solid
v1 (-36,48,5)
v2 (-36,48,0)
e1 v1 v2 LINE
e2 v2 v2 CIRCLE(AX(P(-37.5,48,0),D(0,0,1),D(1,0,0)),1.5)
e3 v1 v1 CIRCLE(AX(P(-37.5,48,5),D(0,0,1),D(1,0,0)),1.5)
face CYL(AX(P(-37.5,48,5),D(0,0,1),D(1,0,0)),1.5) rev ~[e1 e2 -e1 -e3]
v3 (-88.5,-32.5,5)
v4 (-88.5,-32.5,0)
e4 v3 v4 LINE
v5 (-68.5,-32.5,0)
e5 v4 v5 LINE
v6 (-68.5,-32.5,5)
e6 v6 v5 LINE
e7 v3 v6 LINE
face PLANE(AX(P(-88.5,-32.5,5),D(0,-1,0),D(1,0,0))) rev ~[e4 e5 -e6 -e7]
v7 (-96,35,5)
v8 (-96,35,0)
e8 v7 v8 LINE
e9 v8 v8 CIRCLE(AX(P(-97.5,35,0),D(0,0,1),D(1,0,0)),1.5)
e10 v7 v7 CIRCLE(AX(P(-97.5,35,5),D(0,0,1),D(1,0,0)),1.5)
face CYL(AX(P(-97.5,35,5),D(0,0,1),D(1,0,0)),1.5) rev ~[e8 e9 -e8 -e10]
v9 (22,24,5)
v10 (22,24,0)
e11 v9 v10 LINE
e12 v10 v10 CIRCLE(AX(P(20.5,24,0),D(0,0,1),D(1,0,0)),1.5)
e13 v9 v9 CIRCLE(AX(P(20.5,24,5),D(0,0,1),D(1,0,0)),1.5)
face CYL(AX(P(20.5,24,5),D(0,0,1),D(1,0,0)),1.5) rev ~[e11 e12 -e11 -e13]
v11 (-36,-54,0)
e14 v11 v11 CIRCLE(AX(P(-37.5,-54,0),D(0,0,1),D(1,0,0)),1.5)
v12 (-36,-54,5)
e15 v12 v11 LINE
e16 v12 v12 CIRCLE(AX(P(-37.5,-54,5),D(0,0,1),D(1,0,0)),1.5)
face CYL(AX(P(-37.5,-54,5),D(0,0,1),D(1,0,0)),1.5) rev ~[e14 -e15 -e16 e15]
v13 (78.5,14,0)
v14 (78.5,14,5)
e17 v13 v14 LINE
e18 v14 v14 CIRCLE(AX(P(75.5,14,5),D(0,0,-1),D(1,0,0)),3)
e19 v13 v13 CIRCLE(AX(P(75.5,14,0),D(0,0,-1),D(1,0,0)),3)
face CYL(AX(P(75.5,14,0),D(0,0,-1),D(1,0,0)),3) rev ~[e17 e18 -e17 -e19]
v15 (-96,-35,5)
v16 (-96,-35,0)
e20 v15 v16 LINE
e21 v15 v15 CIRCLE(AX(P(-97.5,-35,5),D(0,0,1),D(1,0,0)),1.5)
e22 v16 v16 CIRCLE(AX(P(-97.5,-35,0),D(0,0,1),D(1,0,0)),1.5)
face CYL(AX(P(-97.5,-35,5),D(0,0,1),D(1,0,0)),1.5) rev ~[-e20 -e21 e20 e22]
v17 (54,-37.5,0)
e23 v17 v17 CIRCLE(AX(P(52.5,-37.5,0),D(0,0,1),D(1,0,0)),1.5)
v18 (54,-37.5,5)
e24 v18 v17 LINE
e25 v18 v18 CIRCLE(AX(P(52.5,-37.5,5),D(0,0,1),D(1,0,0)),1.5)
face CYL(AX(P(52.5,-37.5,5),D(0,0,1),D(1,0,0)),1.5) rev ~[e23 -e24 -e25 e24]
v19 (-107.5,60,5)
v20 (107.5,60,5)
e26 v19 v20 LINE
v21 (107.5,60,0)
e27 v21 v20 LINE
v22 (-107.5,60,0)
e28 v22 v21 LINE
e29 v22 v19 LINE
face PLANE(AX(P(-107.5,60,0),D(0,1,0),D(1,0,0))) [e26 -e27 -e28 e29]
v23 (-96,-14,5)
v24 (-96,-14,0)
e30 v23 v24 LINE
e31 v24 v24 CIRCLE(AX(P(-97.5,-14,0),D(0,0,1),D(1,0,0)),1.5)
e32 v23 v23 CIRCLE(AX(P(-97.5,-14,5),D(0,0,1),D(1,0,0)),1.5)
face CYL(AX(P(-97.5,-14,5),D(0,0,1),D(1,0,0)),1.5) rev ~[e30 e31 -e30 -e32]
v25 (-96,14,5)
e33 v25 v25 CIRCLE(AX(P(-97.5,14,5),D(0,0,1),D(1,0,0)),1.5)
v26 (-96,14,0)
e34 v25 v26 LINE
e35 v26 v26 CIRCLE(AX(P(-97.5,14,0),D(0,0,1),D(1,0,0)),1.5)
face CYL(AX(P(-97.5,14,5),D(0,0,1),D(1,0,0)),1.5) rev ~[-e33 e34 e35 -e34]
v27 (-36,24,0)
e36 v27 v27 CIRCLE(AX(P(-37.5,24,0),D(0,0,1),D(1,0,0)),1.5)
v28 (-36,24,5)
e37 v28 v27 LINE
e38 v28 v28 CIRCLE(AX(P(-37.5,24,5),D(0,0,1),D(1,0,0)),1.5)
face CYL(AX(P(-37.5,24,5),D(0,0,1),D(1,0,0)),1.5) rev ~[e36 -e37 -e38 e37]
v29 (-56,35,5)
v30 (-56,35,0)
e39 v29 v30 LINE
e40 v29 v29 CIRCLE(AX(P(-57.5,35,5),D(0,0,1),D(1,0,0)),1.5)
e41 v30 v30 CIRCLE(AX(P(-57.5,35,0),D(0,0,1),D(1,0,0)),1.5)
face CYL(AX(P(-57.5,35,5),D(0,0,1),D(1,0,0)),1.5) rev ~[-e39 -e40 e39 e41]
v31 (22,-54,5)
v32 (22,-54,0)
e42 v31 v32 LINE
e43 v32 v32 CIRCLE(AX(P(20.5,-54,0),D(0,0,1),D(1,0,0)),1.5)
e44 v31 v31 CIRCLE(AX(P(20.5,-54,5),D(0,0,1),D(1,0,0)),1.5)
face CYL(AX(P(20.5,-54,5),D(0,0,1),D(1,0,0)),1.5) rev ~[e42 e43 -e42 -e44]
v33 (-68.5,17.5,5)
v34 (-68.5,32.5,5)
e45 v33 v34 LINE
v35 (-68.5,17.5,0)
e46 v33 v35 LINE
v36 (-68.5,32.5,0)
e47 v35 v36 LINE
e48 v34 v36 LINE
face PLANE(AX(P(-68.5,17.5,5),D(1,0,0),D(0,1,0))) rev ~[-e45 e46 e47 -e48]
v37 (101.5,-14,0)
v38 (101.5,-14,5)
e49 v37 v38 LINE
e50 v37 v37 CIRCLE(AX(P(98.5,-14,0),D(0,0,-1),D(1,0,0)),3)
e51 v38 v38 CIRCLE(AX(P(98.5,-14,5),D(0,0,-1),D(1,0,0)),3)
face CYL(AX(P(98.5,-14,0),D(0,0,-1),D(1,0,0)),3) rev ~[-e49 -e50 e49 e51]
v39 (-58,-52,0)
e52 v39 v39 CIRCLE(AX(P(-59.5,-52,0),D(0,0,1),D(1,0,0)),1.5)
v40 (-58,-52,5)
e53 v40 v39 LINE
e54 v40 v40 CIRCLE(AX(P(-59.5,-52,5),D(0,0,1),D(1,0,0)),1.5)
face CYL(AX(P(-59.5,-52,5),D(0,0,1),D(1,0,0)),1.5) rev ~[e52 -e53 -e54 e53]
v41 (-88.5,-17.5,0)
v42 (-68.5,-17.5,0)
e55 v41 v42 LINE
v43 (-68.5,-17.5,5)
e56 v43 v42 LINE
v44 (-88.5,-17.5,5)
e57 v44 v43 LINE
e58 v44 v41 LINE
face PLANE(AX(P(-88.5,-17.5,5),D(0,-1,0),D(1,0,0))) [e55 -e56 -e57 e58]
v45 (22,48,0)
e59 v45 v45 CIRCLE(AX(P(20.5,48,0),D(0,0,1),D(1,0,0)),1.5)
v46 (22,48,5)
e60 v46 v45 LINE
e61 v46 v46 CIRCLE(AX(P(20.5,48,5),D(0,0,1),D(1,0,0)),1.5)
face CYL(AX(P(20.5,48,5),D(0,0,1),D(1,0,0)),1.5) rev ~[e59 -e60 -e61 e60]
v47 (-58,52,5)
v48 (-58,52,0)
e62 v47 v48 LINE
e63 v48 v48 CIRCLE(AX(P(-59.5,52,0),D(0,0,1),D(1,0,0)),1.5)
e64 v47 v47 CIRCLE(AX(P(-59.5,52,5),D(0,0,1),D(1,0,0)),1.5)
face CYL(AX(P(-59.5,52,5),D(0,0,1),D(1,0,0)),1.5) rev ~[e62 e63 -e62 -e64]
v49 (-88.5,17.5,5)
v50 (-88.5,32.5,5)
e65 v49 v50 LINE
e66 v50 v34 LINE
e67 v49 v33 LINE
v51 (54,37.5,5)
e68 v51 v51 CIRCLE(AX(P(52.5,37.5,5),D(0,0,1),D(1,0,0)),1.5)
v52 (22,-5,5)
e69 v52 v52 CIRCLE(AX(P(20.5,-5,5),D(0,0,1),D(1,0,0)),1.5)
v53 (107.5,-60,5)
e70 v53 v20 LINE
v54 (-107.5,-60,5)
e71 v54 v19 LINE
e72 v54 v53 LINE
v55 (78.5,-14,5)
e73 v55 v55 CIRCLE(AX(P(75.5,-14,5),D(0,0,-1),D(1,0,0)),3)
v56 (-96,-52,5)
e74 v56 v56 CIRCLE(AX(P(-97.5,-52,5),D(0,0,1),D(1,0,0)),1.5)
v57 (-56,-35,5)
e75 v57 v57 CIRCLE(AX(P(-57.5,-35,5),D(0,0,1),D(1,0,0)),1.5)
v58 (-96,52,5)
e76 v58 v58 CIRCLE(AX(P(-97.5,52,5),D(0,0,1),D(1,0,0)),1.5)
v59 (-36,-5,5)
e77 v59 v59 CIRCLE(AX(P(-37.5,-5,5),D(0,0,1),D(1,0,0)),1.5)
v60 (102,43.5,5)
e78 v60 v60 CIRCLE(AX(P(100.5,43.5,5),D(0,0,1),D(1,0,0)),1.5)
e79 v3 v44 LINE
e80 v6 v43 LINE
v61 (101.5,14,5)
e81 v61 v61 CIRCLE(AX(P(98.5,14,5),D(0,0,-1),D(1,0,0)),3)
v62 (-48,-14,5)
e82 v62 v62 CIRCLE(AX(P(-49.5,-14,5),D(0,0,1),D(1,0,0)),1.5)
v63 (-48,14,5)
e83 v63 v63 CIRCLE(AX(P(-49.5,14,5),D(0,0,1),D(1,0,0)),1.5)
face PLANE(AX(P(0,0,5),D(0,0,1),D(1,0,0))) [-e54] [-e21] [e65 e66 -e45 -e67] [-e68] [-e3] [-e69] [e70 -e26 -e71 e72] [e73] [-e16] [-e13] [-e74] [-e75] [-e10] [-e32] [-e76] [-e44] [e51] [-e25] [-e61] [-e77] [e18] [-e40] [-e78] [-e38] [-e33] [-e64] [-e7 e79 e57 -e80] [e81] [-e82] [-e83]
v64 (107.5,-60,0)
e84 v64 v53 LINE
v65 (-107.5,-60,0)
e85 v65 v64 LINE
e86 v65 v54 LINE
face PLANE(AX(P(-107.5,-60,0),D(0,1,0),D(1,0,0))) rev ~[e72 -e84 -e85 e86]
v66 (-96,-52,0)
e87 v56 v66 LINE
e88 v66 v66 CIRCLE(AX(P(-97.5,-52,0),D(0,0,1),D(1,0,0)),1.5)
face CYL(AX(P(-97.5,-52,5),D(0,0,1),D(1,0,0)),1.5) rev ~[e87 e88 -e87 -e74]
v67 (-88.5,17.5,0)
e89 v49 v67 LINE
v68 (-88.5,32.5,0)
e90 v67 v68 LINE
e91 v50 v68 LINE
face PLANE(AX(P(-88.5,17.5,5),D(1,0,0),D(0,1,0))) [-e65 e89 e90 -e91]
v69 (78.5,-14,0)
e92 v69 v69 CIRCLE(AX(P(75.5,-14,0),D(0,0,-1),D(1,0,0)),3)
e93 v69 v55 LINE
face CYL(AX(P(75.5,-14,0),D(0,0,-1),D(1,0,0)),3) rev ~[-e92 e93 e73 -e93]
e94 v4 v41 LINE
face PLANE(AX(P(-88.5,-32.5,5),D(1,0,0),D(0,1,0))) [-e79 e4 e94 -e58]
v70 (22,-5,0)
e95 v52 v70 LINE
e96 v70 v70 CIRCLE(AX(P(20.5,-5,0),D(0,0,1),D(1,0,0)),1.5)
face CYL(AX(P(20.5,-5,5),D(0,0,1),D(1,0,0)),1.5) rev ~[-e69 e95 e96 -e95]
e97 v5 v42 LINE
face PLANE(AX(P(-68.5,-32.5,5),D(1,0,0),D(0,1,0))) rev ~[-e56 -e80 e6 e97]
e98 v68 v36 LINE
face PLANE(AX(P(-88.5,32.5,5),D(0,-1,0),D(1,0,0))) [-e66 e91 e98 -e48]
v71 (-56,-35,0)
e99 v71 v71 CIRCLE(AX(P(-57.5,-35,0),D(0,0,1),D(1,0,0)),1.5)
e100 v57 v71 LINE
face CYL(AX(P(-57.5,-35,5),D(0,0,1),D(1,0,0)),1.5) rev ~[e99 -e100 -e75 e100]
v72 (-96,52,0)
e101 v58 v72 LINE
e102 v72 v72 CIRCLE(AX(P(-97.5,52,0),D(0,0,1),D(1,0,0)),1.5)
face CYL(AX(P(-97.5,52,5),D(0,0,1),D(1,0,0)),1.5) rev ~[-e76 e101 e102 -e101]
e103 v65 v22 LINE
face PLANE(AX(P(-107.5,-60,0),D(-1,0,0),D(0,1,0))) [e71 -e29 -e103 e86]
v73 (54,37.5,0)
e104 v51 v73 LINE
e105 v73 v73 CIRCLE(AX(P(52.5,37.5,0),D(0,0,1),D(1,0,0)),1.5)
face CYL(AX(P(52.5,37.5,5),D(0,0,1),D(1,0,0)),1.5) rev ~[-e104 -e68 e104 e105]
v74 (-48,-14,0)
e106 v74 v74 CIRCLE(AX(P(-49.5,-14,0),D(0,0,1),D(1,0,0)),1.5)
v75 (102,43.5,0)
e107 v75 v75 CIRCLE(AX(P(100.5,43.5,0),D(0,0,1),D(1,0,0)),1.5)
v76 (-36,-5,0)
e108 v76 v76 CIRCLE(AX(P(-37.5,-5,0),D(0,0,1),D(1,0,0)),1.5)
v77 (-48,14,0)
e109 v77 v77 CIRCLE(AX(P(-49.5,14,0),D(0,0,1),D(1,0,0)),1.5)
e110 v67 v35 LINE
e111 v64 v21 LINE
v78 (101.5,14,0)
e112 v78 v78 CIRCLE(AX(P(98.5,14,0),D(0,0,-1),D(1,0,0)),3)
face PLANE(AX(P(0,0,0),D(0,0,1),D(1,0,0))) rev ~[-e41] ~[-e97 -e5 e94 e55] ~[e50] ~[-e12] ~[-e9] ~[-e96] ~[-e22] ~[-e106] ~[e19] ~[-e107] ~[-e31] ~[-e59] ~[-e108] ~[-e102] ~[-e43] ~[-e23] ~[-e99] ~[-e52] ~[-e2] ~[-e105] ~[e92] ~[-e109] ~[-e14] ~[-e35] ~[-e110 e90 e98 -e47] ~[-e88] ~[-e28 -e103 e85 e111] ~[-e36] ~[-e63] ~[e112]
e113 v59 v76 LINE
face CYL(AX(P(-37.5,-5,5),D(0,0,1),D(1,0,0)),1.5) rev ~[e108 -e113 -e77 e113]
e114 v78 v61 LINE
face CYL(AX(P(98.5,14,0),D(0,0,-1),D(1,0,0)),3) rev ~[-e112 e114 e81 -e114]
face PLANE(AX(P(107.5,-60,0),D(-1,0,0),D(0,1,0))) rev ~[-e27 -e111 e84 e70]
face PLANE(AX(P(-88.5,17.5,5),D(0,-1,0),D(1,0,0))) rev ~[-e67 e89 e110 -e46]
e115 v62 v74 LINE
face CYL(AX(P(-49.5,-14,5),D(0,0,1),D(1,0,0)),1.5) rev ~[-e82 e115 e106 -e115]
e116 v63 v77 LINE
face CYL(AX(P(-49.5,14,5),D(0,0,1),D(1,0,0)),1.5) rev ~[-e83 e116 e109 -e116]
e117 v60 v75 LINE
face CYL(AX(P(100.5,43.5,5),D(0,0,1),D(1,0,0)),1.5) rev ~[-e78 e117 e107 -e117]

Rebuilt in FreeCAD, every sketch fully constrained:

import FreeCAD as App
import Part
import Sketcher
from FreeCAD import Vector
Q = App.Units.Quantity


def add_polygon(sketch, points):
    """Adds a closed chain of lines whose ends are joined by coincident constraints."""
    first, n = sketch.GeometryCount, len(points)
    for a, b in zip(points, points[1:] + points[:1]):
        sketch.addGeometry(Part.LineSegment(App.Vector(*a, 0), App.Vector(*b, 0)), False)
    for i in range(n):
        sketch.addConstraint(Sketcher.Constraint("Coincident", first + i, 2, first + (i + 1) % n, 1))

doc = App.newDocument("Part")
body = doc.addObject("PartDesign::Body", "Body")

sketch1 = body.newObject("Sketcher::SketchObject", "Sketch")
sketch1.AttachmentSupport = (doc.getObject("XY_Plane"), [""])
sketch1.MapMode = "FlatFace"
add_polygon(sketch1, [(-108, 60), (-108, -60), (108, -60), (108, 60)])
sketch1.addConstraint(Sketcher.Constraint("Vertical", 0))
sketch1.addConstraint(Sketcher.Constraint("Horizontal", 1))
sketch1.addConstraint(Sketcher.Constraint("Vertical", 2))
sketch1.addConstraint(Sketcher.Constraint("Horizontal", 3))
sketch1.addConstraint(Sketcher.Constraint("Symmetric", 0, 2, 2, 2, -1, 1))
sketch1.addConstraint(Sketcher.Constraint("DistanceX", 1, 1, 1, 2, Q("215 mm")))
sketch1.addConstraint(Sketcher.Constraint("DistanceY", 0, 2, 0, 1, Q("120 mm")))
pad1 = body.newObject("PartDesign::Pad", "Pad")
pad1.Profile = sketch1
pad1.Length = 5

sketch2 = body.newObject("Sketcher::SketchObject", "Sketch001")
sketch2.AttachmentSupport = (doc.getObject("XY_Plane"), [""])
sketch2.MapMode = "FlatFace"
sketch2.AttachmentOffset = App.Placement(Vector(0, 0, 5), App.Rotation())
sketch2.addGeometry(Part.Circle(Vector(-97.5, 52, 0), Vector(0, 0, 1), 1.5), False)
sketch2.addGeometry(Part.Circle(Vector(-59.5, 52, 0), Vector(0, 0, 1), 1.5), False)
sketch2.addGeometry(Part.Circle(Vector(-97.5, -52, 0), Vector(0, 0, 1), 1.5), False)
sketch2.addGeometry(Part.Circle(Vector(-59.5, -52, 0), Vector(0, 0, 1), 1.5), False)
add_polygon(sketch2, [(-88.5, 32.5), (-88.5, 17.5), (-68.5, 17.5), (-68.5, 32.5)])
add_polygon(sketch2, [(-88.5, -17.5), (-88.5, -32.5), (-68.5, -32.5), (-68.5, -17.5)])
sketch2.addConstraint(Sketcher.Constraint("Vertical", 4))
sketch2.addConstraint(Sketcher.Constraint("Horizontal", 5))
sketch2.addConstraint(Sketcher.Constraint("Vertical", 6))
sketch2.addConstraint(Sketcher.Constraint("Horizontal", 7))
sketch2.addConstraint(Sketcher.Constraint("Vertical", 8))
sketch2.addConstraint(Sketcher.Constraint("Horizontal", 9))
sketch2.addConstraint(Sketcher.Constraint("Vertical", 10))
sketch2.addConstraint(Sketcher.Constraint("Horizontal", 11))
sketch2.addConstraint(Sketcher.Constraint("Equal", 0, 1))
sketch2.addConstraint(Sketcher.Constraint("Equal", 1, 2))
sketch2.addConstraint(Sketcher.Constraint("Equal", 2, 3))
sketch2.addConstraint(Sketcher.Constraint("Symmetric", 0, 3, 2, 3, -1))
sketch2.addConstraint(Sketcher.Constraint("Symmetric", 1, 3, 3, 3, -1))
sketch2.addConstraint(Sketcher.Constraint("Symmetric", 7, 2, 8, 2, -1))
sketch2.addConstraint(Sketcher.Constraint("Symmetric", 5, 2, 10, 2, -1))
sketch2.addConstraint(Sketcher.Constraint("Horizontal", 0, 3, 1, 3))
sketch2.addConstraint(Sketcher.Constraint("Diameter", 0, Q("3 mm")))
sketch2.addConstraint(Sketcher.Constraint("DistanceX", 5, 1, 5, 2, Q("20 mm")))
sketch2.addConstraint(Sketcher.Constraint("DistanceY", 4, 2, 4, 1, Q("15 mm")))
sketch2.addConstraint(Sketcher.Constraint("DistanceY", -1, 1, 0, 3, Q("52 mm")))
sketch2.addConstraint(Sketcher.Constraint("DistanceX", 0, 3, 1, 3, Q("38 mm")))
sketch2.addConstraint(Sketcher.Constraint("DistanceX", 0, 3, 4, 2, Q("9 mm")))
sketch2.addConstraint(Sketcher.Constraint("DistanceY", 8, 2, 4, 2, Q("50 mm")))
sketch2.addConstraint(Sketcher.Constraint("DistanceX", 0, 3, -1, 1, Q("97.5 mm")))
pocket1 = body.newObject("PartDesign::Pocket", "Pocket")
pocket1.Profile = sketch2
pocket1.Length = 25

sketch3 = body.newObject("Sketcher::SketchObject", "Sketch002")
sketch3.AttachmentSupport = (doc.getObject("XY_Plane"), [""])
sketch3.MapMode = "FlatFace"
sketch3.AttachmentOffset = App.Placement(Vector(0, 0, 5), App.Rotation())
sketch3.addGeometry(Part.Circle(Vector(-37.5, -54, 0), Vector(0, 0, 1), 1.5), False)
sketch3.addGeometry(Part.Circle(Vector(-37.5, -5, 0), Vector(0, 0, 1), 1.5), False)
sketch3.addGeometry(Part.Circle(Vector(20.5, -54, 0), Vector(0, 0, 1), 1.5), False)
sketch3.addGeometry(Part.Circle(Vector(20.5, -5, 0), Vector(0, 0, 1), 1.5), False)
sketch3.addConstraint(Sketcher.Constraint("Equal", 0, 1))
sketch3.addConstraint(Sketcher.Constraint("Equal", 1, 2))
sketch3.addConstraint(Sketcher.Constraint("Equal", 2, 3))
sketch3.addConstraint(Sketcher.Constraint("Horizontal", 0, 3, 2, 3))
sketch3.addConstraint(Sketcher.Constraint("Horizontal", 1, 3, 3, 3))
sketch3.addConstraint(Sketcher.Constraint("Vertical", 0, 3, 1, 3))
sketch3.addConstraint(Sketcher.Constraint("Vertical", 2, 3, 3, 3))
sketch3.addConstraint(Sketcher.Constraint("Diameter", 0, Q("3 mm")))
sketch3.addConstraint(Sketcher.Constraint("DistanceY", 0, 3, -1, 1, Q("54 mm")))
sketch3.addConstraint(Sketcher.Constraint("DistanceY", 1, 3, -1, 1, Q("5 mm")))
sketch3.addConstraint(Sketcher.Constraint("DistanceX", 0, 3, 2, 3, Q("58 mm")))
sketch3.addConstraint(Sketcher.Constraint("DistanceX", 0, 3, -1, 1, Q("37.5 mm")))
pocket2 = body.newObject("PartDesign::Pocket", "Pocket001")
pocket2.Profile = sketch3
pocket2.Type = "ThroughAll"

sketch4 = body.newObject("Sketcher::SketchObject", "Sketch003")
sketch4.AttachmentSupport = (doc.getObject("XY_Plane"), [""])
sketch4.MapMode = "FlatFace"
sketch4.addGeometry(Part.Circle(Vector(98.5, 14, 0), Vector(0, 0, 1), 3), False)
sketch4.addGeometry(Part.Circle(Vector(98.5, -14, 0), Vector(0, 0, 1), 3), False)
sketch4.addGeometry(Part.Circle(Vector(75.5, 14, 0), Vector(0, 0, 1), 3), False)
sketch4.addGeometry(Part.Circle(Vector(75.5, -14, 0), Vector(0, 0, 1), 3), False)
sketch4.addConstraint(Sketcher.Constraint("Equal", 0, 1))
sketch4.addConstraint(Sketcher.Constraint("Equal", 1, 2))
sketch4.addConstraint(Sketcher.Constraint("Equal", 2, 3))
sketch4.addConstraint(Sketcher.Constraint("Symmetric", 0, 3, 1, 3, -1))
sketch4.addConstraint(Sketcher.Constraint("Symmetric", 2, 3, 3, 3, -1))
sketch4.addConstraint(Sketcher.Constraint("Horizontal", 0, 3, 2, 3))
sketch4.addConstraint(Sketcher.Constraint("Diameter", 0, Q("6 mm")))
sketch4.addConstraint(Sketcher.Constraint("DistanceY", -1, 1, 0, 3, Q("14 mm")))
sketch4.addConstraint(Sketcher.Constraint("DistanceX", 2, 3, 0, 3, Q("23 mm")))
sketch4.addConstraint(Sketcher.Constraint("DistanceX", -1, 1, 0, 3, Q("98.5 mm")))
pocket3 = body.newObject("PartDesign::Pocket", "Pocket002")
pocket3.Profile = sketch4
pocket3.Type = "ThroughAll"
pocket3.Reversed = True

sketch5 = body.newObject("Sketcher::SketchObject", "Sketch004")
sketch5.AttachmentSupport = (doc.getObject("XY_Plane"), [""])
sketch5.MapMode = "FlatFace"
sketch5.AttachmentOffset = App.Placement(Vector(0, 0, 5), App.Rotation())
sketch5.addGeometry(Part.Circle(Vector(-37.5, 48, 0), Vector(0, 0, 1), 1.5), False)
sketch5.addGeometry(Part.Circle(Vector(-37.5, 24, 0), Vector(0, 0, 1), 1.5), False)
sketch5.addGeometry(Part.Circle(Vector(20.5, 48, 0), Vector(0, 0, 1), 1.5), False)
sketch5.addGeometry(Part.Circle(Vector(20.5, 24, 0), Vector(0, 0, 1), 1.5), False)
sketch5.addConstraint(Sketcher.Constraint("Equal", 0, 1))
sketch5.addConstraint(Sketcher.Constraint("Equal", 1, 2))
sketch5.addConstraint(Sketcher.Constraint("Equal", 2, 3))
sketch5.addConstraint(Sketcher.Constraint("Horizontal", 0, 3, 2, 3))
sketch5.addConstraint(Sketcher.Constraint("Horizontal", 1, 3, 3, 3))
sketch5.addConstraint(Sketcher.Constraint("Vertical", 0, 3, 1, 3))
sketch5.addConstraint(Sketcher.Constraint("Vertical", 2, 3, 3, 3))
sketch5.addConstraint(Sketcher.Constraint("Diameter", 0, Q("3 mm")))
sketch5.addConstraint(Sketcher.Constraint("DistanceY", -1, 1, 0, 3, Q("48 mm")))
sketch5.addConstraint(Sketcher.Constraint("DistanceY", -1, 1, 1, 3, Q("24 mm")))
sketch5.addConstraint(Sketcher.Constraint("DistanceX", 0, 3, 2, 3, Q("58 mm")))
sketch5.addConstraint(Sketcher.Constraint("DistanceX", 0, 3, -1, 1, Q("37.5 mm")))
pocket4 = body.newObject("PartDesign::Pocket", "Pocket003")
pocket4.Profile = sketch5
pocket4.Type = "ThroughAll"

sketch6 = body.newObject("Sketcher::SketchObject", "Sketch005")
sketch6.AttachmentSupport = (doc.getObject("XY_Plane"), [""])
sketch6.MapMode = "FlatFace"
sketch6.AttachmentOffset = App.Placement(Vector(0, 0, 5), App.Rotation())
sketch6.addGeometry(Part.Circle(Vector(-97.5, 14, 0), Vector(0, 0, 1), 1.5), False)
sketch6.addGeometry(Part.Circle(Vector(-97.5, -14, 0), Vector(0, 0, 1), 1.5), False)
sketch6.addGeometry(Part.Circle(Vector(-49.5, 14, 0), Vector(0, 0, 1), 1.5), False)
sketch6.addGeometry(Part.Circle(Vector(-49.5, -14, 0), Vector(0, 0, 1), 1.5), False)
sketch6.addConstraint(Sketcher.Constraint("Equal", 0, 1))
sketch6.addConstraint(Sketcher.Constraint("Equal", 1, 2))
sketch6.addConstraint(Sketcher.Constraint("Equal", 2, 3))
sketch6.addConstraint(Sketcher.Constraint("Symmetric", 0, 3, 1, 3, -1))
sketch6.addConstraint(Sketcher.Constraint("Symmetric", 2, 3, 3, 3, -1))
sketch6.addConstraint(Sketcher.Constraint("Horizontal", 0, 3, 2, 3))
sketch6.addConstraint(Sketcher.Constraint("Diameter", 0, Q("3 mm")))
sketch6.addConstraint(Sketcher.Constraint("DistanceY", -1, 1, 0, 3, Q("14 mm")))
sketch6.addConstraint(Sketcher.Constraint("DistanceX", 0, 3, 2, 3, Q("48 mm")))
sketch6.addConstraint(Sketcher.Constraint("DistanceX", 0, 3, -1, 1, Q("97.5 mm")))
pocket5 = body.newObject("PartDesign::Pocket", "Pocket004")
pocket5.Profile = sketch6
pocket5.Type = "ThroughAll"

sketch7 = body.newObject("Sketcher::SketchObject", "Sketch006")
sketch7.AttachmentSupport = (doc.getObject("XY_Plane"), [""])
sketch7.MapMode = "FlatFace"
sketch7.AttachmentOffset = App.Placement(Vector(0, 0, 5), App.Rotation())
sketch7.addGeometry(Part.Circle(Vector(-57.5, 35, 0), Vector(0, 0, 1), 1.5), False)
sketch7.addGeometry(Part.Circle(Vector(-57.5, -35, 0), Vector(0, 0, 1), 1.5), False)
sketch7.addGeometry(Part.Circle(Vector(-97.5, 35, 0), Vector(0, 0, 1), 1.5), False)
sketch7.addGeometry(Part.Circle(Vector(-97.5, -35, 0), Vector(0, 0, 1), 1.5), False)
sketch7.addConstraint(Sketcher.Constraint("Equal", 0, 1))
sketch7.addConstraint(Sketcher.Constraint("Equal", 1, 2))
sketch7.addConstraint(Sketcher.Constraint("Equal", 2, 3))
sketch7.addConstraint(Sketcher.Constraint("Symmetric", 0, 3, 1, 3, -1))
sketch7.addConstraint(Sketcher.Constraint("Symmetric", 2, 3, 3, 3, -1))
sketch7.addConstraint(Sketcher.Constraint("Horizontal", 0, 3, 2, 3))
sketch7.addConstraint(Sketcher.Constraint("Diameter", 0, Q("3 mm")))
sketch7.addConstraint(Sketcher.Constraint("DistanceY", -1, 1, 0, 3, Q("35 mm")))
sketch7.addConstraint(Sketcher.Constraint("DistanceX", 2, 3, 0, 3, Q("40 mm")))
sketch7.addConstraint(Sketcher.Constraint("DistanceX", 0, 3, -1, 1, Q("57.5 mm")))
pocket6 = body.newObject("PartDesign::Pocket", "Pocket005")
pocket6.Profile = sketch7
pocket6.Type = "ThroughAll"

sketch8 = body.newObject("Sketcher::SketchObject", "Sketch007")
sketch8.AttachmentSupport = (doc.getObject("XY_Plane"), [""])
sketch8.MapMode = "FlatFace"
sketch8.AttachmentOffset = App.Placement(Vector(0, 0, 5), App.Rotation())
sketch8.addGeometry(Part.Circle(Vector(52.5, 37.5, 0), Vector(0, 0, 1), 1.5), False)
sketch8.addGeometry(Part.Circle(Vector(100.5, 43.5, 0), Vector(0, 0, 1), 1.5), False)
sketch8.addGeometry(Part.Circle(Vector(52.5, -37.5, 0), Vector(0, 0, 1), 1.5), False)
sketch8.addConstraint(Sketcher.Constraint("Equal", 0, 1))
sketch8.addConstraint(Sketcher.Constraint("Equal", 1, 2))
sketch8.addConstraint(Sketcher.Constraint("Symmetric", 0, 3, 2, 3, -1))
sketch8.addConstraint(Sketcher.Constraint("Diameter", 0, Q("3 mm")))
sketch8.addConstraint(Sketcher.Constraint("DistanceX", 0, 3, 1, 3, Q("48 mm")))
sketch8.addConstraint(Sketcher.Constraint("DistanceY", 0, 3, 1, 3, Q("6 mm")))
sketch8.addConstraint(Sketcher.Constraint("DistanceY", 2, 3, 0, 3, Q("75 mm")))
sketch8.addConstraint(Sketcher.Constraint("DistanceX", -1, 1, 0, 3, Q("52.5 mm")))
pocket7 = body.newObject("PartDesign::Pocket", "Pocket006")
pocket7.Profile = sketch8
pocket7.Type = "ThroughAll"

doc.recompute()
